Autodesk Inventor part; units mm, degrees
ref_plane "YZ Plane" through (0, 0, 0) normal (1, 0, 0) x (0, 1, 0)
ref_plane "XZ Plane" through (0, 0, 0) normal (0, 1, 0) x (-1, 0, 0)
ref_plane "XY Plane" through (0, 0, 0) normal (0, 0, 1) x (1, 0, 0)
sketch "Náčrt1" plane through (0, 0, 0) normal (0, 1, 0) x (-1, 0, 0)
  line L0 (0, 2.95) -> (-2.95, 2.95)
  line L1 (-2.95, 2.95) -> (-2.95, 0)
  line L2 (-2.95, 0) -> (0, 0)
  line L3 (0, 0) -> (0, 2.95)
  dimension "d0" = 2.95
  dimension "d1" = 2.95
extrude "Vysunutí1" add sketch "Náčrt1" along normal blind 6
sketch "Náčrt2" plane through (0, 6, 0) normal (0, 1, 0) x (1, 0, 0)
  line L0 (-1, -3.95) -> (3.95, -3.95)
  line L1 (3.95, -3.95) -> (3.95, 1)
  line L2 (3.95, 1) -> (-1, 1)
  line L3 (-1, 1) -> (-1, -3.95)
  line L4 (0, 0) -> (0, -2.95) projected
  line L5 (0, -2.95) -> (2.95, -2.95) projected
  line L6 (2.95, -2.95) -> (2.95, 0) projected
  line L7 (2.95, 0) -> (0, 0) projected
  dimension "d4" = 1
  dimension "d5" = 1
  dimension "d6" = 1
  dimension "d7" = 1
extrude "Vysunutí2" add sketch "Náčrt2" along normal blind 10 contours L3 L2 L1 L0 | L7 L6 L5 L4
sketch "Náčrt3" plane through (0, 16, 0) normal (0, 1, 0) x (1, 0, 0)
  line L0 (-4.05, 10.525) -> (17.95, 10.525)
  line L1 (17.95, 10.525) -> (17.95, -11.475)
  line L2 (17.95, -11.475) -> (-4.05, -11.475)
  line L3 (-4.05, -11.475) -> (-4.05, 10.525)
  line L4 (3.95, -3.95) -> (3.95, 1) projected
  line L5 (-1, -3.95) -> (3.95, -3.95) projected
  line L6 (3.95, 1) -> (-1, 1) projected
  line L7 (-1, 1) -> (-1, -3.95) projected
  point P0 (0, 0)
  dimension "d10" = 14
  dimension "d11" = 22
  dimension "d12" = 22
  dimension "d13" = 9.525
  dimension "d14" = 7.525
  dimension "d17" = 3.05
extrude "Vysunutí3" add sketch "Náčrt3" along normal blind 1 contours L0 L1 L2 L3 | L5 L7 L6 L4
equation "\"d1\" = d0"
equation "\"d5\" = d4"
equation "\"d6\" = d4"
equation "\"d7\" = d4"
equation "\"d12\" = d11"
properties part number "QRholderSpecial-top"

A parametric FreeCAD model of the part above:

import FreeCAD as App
import Part
import Sketcher

V = App.Vector

doc = App.newDocument("Part")
body = doc.addObject("PartDesign::Body", "Body")

# Sketch on XZ plane
sketch1 = body.newObject("Sketcher::SketchObject", "Sketch")
sketch1.AttachmentSupport = (doc.getObject("XZ_Plane"), [""])
sketch1.MapMode = "FlatFace"
sketch1.addGeometry([
    Part.LineSegment(V(0, 0, 0), V(0, 3, 0)),
    Part.LineSegment(V(0, 3, 0), V(3, 3, 0)),
    Part.LineSegment(V(3, 3, 0), V(3, 0, 0)),
    Part.LineSegment(V(3, 0, 0), V(0, 0, 0)),
], False)
sketch1.addConstraint([
    Sketcher.Constraint("Coincident", 0, 2, 1, 1),
    Sketcher.Constraint("Coincident", 1, 2, 2, 1),
    Sketcher.Constraint("Coincident", 2, 2, 3, 1),
    Sketcher.Constraint("Coincident", 3, 2, 0, 1),
    Sketcher.Constraint("Vertical", 0),
    Sketcher.Constraint("Horizontal", 1),
    Sketcher.Constraint("Vertical", 2),
    Sketcher.Constraint("Horizontal", 3),
    Sketcher.Constraint("Coincident", 3, 2, -1, 1),
    Sketcher.Constraint("Equal", 3, 0),
    Sketcher.Constraint("DistanceX", 1, 1, 1, 2, 2.95),
])
pad1 = body.newObject("PartDesign::Pad", "Pad")
pad1.Profile = sketch1
pad1.Length = 6
pad1.Reversed = True

# Sketch on XZ plane
sketch2 = body.newObject("Sketcher::SketchObject", "Sketch001")
sketch2.AttachmentSupport = (doc.getObject("XZ_Plane"), [""])
sketch2.MapMode = "FlatFace"
sketch2.AttachmentOffset = App.Placement(V(0, 0, -6), App.Rotation())
sketch2.addGeometry([
    Part.LineSegment(V(-1, -1, 0), V(-1, 4, 0)),
    Part.LineSegment(V(-1, 4, 0), V(4, 4, 0)),
    Part.LineSegment(V(4, 4, 0), V(4, -1, 0)),
    Part.LineSegment(V(4, -1, 0), V(-1, -1, 0)),
], False)
sketch2.addConstraint([
    Sketcher.Constraint("Coincident", 0, 2, 1, 1),
    Sketcher.Constraint("Coincident", 1, 2, 2, 1),
    Sketcher.Constraint("Coincident", 2, 2, 3, 1),
    Sketcher.Constraint("Coincident", 3, 2, 0, 1),
    Sketcher.Constraint("Vertical", 0),
    Sketcher.Constraint("Horizontal", 1),
    Sketcher.Constraint("Vertical", 2),
    Sketcher.Constraint("Horizontal", 3),
    Sketcher.Constraint("Equal", 3, 0),
    Sketcher.Constraint("DistanceX", 0, 2, -1, 1, 1.0),
    Sketcher.Constraint("DistanceY", 2, 2, -1, 1, 1.0),
    Sketcher.Constraint("DistanceX", 1, 1, 1, 2, 4.95),
])
pad2 = body.newObject("PartDesign::Pad", "Pad001")
pad2.Profile = sketch2
pad2.Length = 10
pad2.Reversed = True

# Sketch on XZ plane
sketch3 = body.newObject("Sketcher::SketchObject", "Sketch002")
sketch3.AttachmentSupport = (doc.getObject("XZ_Plane"), [""])
sketch3.MapMode = "FlatFace"
sketch3.AttachmentOffset = App.Placement(V(0, 0, -16), App.Rotation())
sketch3.addGeometry([
    Part.LineSegment(V(18, -11, 0), V(-4, -11, 0)),
    Part.LineSegment(V(-4, -11, 0), V(-4, 11, 0)),
    Part.LineSegment(V(-4, 11, 0), V(18, 11, 0)),
    Part.LineSegment(V(18, 11, 0), V(18, -11, 0)),
], False)
sketch3.addConstraint([
    Sketcher.Constraint("Coincident", 0, 2, 1, 1),
    Sketcher.Constraint("Coincident", 1, 2, 2, 1),
    Sketcher.Constraint("Coincident", 2, 2, 3, 1),
    Sketcher.Constraint("Coincident", 3, 2, 0, 1),
    Sketcher.Constraint("Horizontal", 0),
    Sketcher.Constraint("Vertical", 1),
    Sketcher.Constraint("Horizontal", 2),
    Sketcher.Constraint("Vertical", 3),
    Sketcher.Constraint("Equal", 2, 1),
    Sketcher.Constraint("DistanceX", 0, 2, 0, 1, 22.0),
    Sketcher.Constraint("DistanceX", 0, 2, -1, 1, 4.05),
    Sketcher.Constraint("DistanceY", 0, 2, -1, 1, 10.525),
])
pad3 = body.newObject("PartDesign::Pad", "Pad002")
pad3.Profile = sketch3
pad3.Length = 1
pad3.Reversed = True

doc.recompute()
